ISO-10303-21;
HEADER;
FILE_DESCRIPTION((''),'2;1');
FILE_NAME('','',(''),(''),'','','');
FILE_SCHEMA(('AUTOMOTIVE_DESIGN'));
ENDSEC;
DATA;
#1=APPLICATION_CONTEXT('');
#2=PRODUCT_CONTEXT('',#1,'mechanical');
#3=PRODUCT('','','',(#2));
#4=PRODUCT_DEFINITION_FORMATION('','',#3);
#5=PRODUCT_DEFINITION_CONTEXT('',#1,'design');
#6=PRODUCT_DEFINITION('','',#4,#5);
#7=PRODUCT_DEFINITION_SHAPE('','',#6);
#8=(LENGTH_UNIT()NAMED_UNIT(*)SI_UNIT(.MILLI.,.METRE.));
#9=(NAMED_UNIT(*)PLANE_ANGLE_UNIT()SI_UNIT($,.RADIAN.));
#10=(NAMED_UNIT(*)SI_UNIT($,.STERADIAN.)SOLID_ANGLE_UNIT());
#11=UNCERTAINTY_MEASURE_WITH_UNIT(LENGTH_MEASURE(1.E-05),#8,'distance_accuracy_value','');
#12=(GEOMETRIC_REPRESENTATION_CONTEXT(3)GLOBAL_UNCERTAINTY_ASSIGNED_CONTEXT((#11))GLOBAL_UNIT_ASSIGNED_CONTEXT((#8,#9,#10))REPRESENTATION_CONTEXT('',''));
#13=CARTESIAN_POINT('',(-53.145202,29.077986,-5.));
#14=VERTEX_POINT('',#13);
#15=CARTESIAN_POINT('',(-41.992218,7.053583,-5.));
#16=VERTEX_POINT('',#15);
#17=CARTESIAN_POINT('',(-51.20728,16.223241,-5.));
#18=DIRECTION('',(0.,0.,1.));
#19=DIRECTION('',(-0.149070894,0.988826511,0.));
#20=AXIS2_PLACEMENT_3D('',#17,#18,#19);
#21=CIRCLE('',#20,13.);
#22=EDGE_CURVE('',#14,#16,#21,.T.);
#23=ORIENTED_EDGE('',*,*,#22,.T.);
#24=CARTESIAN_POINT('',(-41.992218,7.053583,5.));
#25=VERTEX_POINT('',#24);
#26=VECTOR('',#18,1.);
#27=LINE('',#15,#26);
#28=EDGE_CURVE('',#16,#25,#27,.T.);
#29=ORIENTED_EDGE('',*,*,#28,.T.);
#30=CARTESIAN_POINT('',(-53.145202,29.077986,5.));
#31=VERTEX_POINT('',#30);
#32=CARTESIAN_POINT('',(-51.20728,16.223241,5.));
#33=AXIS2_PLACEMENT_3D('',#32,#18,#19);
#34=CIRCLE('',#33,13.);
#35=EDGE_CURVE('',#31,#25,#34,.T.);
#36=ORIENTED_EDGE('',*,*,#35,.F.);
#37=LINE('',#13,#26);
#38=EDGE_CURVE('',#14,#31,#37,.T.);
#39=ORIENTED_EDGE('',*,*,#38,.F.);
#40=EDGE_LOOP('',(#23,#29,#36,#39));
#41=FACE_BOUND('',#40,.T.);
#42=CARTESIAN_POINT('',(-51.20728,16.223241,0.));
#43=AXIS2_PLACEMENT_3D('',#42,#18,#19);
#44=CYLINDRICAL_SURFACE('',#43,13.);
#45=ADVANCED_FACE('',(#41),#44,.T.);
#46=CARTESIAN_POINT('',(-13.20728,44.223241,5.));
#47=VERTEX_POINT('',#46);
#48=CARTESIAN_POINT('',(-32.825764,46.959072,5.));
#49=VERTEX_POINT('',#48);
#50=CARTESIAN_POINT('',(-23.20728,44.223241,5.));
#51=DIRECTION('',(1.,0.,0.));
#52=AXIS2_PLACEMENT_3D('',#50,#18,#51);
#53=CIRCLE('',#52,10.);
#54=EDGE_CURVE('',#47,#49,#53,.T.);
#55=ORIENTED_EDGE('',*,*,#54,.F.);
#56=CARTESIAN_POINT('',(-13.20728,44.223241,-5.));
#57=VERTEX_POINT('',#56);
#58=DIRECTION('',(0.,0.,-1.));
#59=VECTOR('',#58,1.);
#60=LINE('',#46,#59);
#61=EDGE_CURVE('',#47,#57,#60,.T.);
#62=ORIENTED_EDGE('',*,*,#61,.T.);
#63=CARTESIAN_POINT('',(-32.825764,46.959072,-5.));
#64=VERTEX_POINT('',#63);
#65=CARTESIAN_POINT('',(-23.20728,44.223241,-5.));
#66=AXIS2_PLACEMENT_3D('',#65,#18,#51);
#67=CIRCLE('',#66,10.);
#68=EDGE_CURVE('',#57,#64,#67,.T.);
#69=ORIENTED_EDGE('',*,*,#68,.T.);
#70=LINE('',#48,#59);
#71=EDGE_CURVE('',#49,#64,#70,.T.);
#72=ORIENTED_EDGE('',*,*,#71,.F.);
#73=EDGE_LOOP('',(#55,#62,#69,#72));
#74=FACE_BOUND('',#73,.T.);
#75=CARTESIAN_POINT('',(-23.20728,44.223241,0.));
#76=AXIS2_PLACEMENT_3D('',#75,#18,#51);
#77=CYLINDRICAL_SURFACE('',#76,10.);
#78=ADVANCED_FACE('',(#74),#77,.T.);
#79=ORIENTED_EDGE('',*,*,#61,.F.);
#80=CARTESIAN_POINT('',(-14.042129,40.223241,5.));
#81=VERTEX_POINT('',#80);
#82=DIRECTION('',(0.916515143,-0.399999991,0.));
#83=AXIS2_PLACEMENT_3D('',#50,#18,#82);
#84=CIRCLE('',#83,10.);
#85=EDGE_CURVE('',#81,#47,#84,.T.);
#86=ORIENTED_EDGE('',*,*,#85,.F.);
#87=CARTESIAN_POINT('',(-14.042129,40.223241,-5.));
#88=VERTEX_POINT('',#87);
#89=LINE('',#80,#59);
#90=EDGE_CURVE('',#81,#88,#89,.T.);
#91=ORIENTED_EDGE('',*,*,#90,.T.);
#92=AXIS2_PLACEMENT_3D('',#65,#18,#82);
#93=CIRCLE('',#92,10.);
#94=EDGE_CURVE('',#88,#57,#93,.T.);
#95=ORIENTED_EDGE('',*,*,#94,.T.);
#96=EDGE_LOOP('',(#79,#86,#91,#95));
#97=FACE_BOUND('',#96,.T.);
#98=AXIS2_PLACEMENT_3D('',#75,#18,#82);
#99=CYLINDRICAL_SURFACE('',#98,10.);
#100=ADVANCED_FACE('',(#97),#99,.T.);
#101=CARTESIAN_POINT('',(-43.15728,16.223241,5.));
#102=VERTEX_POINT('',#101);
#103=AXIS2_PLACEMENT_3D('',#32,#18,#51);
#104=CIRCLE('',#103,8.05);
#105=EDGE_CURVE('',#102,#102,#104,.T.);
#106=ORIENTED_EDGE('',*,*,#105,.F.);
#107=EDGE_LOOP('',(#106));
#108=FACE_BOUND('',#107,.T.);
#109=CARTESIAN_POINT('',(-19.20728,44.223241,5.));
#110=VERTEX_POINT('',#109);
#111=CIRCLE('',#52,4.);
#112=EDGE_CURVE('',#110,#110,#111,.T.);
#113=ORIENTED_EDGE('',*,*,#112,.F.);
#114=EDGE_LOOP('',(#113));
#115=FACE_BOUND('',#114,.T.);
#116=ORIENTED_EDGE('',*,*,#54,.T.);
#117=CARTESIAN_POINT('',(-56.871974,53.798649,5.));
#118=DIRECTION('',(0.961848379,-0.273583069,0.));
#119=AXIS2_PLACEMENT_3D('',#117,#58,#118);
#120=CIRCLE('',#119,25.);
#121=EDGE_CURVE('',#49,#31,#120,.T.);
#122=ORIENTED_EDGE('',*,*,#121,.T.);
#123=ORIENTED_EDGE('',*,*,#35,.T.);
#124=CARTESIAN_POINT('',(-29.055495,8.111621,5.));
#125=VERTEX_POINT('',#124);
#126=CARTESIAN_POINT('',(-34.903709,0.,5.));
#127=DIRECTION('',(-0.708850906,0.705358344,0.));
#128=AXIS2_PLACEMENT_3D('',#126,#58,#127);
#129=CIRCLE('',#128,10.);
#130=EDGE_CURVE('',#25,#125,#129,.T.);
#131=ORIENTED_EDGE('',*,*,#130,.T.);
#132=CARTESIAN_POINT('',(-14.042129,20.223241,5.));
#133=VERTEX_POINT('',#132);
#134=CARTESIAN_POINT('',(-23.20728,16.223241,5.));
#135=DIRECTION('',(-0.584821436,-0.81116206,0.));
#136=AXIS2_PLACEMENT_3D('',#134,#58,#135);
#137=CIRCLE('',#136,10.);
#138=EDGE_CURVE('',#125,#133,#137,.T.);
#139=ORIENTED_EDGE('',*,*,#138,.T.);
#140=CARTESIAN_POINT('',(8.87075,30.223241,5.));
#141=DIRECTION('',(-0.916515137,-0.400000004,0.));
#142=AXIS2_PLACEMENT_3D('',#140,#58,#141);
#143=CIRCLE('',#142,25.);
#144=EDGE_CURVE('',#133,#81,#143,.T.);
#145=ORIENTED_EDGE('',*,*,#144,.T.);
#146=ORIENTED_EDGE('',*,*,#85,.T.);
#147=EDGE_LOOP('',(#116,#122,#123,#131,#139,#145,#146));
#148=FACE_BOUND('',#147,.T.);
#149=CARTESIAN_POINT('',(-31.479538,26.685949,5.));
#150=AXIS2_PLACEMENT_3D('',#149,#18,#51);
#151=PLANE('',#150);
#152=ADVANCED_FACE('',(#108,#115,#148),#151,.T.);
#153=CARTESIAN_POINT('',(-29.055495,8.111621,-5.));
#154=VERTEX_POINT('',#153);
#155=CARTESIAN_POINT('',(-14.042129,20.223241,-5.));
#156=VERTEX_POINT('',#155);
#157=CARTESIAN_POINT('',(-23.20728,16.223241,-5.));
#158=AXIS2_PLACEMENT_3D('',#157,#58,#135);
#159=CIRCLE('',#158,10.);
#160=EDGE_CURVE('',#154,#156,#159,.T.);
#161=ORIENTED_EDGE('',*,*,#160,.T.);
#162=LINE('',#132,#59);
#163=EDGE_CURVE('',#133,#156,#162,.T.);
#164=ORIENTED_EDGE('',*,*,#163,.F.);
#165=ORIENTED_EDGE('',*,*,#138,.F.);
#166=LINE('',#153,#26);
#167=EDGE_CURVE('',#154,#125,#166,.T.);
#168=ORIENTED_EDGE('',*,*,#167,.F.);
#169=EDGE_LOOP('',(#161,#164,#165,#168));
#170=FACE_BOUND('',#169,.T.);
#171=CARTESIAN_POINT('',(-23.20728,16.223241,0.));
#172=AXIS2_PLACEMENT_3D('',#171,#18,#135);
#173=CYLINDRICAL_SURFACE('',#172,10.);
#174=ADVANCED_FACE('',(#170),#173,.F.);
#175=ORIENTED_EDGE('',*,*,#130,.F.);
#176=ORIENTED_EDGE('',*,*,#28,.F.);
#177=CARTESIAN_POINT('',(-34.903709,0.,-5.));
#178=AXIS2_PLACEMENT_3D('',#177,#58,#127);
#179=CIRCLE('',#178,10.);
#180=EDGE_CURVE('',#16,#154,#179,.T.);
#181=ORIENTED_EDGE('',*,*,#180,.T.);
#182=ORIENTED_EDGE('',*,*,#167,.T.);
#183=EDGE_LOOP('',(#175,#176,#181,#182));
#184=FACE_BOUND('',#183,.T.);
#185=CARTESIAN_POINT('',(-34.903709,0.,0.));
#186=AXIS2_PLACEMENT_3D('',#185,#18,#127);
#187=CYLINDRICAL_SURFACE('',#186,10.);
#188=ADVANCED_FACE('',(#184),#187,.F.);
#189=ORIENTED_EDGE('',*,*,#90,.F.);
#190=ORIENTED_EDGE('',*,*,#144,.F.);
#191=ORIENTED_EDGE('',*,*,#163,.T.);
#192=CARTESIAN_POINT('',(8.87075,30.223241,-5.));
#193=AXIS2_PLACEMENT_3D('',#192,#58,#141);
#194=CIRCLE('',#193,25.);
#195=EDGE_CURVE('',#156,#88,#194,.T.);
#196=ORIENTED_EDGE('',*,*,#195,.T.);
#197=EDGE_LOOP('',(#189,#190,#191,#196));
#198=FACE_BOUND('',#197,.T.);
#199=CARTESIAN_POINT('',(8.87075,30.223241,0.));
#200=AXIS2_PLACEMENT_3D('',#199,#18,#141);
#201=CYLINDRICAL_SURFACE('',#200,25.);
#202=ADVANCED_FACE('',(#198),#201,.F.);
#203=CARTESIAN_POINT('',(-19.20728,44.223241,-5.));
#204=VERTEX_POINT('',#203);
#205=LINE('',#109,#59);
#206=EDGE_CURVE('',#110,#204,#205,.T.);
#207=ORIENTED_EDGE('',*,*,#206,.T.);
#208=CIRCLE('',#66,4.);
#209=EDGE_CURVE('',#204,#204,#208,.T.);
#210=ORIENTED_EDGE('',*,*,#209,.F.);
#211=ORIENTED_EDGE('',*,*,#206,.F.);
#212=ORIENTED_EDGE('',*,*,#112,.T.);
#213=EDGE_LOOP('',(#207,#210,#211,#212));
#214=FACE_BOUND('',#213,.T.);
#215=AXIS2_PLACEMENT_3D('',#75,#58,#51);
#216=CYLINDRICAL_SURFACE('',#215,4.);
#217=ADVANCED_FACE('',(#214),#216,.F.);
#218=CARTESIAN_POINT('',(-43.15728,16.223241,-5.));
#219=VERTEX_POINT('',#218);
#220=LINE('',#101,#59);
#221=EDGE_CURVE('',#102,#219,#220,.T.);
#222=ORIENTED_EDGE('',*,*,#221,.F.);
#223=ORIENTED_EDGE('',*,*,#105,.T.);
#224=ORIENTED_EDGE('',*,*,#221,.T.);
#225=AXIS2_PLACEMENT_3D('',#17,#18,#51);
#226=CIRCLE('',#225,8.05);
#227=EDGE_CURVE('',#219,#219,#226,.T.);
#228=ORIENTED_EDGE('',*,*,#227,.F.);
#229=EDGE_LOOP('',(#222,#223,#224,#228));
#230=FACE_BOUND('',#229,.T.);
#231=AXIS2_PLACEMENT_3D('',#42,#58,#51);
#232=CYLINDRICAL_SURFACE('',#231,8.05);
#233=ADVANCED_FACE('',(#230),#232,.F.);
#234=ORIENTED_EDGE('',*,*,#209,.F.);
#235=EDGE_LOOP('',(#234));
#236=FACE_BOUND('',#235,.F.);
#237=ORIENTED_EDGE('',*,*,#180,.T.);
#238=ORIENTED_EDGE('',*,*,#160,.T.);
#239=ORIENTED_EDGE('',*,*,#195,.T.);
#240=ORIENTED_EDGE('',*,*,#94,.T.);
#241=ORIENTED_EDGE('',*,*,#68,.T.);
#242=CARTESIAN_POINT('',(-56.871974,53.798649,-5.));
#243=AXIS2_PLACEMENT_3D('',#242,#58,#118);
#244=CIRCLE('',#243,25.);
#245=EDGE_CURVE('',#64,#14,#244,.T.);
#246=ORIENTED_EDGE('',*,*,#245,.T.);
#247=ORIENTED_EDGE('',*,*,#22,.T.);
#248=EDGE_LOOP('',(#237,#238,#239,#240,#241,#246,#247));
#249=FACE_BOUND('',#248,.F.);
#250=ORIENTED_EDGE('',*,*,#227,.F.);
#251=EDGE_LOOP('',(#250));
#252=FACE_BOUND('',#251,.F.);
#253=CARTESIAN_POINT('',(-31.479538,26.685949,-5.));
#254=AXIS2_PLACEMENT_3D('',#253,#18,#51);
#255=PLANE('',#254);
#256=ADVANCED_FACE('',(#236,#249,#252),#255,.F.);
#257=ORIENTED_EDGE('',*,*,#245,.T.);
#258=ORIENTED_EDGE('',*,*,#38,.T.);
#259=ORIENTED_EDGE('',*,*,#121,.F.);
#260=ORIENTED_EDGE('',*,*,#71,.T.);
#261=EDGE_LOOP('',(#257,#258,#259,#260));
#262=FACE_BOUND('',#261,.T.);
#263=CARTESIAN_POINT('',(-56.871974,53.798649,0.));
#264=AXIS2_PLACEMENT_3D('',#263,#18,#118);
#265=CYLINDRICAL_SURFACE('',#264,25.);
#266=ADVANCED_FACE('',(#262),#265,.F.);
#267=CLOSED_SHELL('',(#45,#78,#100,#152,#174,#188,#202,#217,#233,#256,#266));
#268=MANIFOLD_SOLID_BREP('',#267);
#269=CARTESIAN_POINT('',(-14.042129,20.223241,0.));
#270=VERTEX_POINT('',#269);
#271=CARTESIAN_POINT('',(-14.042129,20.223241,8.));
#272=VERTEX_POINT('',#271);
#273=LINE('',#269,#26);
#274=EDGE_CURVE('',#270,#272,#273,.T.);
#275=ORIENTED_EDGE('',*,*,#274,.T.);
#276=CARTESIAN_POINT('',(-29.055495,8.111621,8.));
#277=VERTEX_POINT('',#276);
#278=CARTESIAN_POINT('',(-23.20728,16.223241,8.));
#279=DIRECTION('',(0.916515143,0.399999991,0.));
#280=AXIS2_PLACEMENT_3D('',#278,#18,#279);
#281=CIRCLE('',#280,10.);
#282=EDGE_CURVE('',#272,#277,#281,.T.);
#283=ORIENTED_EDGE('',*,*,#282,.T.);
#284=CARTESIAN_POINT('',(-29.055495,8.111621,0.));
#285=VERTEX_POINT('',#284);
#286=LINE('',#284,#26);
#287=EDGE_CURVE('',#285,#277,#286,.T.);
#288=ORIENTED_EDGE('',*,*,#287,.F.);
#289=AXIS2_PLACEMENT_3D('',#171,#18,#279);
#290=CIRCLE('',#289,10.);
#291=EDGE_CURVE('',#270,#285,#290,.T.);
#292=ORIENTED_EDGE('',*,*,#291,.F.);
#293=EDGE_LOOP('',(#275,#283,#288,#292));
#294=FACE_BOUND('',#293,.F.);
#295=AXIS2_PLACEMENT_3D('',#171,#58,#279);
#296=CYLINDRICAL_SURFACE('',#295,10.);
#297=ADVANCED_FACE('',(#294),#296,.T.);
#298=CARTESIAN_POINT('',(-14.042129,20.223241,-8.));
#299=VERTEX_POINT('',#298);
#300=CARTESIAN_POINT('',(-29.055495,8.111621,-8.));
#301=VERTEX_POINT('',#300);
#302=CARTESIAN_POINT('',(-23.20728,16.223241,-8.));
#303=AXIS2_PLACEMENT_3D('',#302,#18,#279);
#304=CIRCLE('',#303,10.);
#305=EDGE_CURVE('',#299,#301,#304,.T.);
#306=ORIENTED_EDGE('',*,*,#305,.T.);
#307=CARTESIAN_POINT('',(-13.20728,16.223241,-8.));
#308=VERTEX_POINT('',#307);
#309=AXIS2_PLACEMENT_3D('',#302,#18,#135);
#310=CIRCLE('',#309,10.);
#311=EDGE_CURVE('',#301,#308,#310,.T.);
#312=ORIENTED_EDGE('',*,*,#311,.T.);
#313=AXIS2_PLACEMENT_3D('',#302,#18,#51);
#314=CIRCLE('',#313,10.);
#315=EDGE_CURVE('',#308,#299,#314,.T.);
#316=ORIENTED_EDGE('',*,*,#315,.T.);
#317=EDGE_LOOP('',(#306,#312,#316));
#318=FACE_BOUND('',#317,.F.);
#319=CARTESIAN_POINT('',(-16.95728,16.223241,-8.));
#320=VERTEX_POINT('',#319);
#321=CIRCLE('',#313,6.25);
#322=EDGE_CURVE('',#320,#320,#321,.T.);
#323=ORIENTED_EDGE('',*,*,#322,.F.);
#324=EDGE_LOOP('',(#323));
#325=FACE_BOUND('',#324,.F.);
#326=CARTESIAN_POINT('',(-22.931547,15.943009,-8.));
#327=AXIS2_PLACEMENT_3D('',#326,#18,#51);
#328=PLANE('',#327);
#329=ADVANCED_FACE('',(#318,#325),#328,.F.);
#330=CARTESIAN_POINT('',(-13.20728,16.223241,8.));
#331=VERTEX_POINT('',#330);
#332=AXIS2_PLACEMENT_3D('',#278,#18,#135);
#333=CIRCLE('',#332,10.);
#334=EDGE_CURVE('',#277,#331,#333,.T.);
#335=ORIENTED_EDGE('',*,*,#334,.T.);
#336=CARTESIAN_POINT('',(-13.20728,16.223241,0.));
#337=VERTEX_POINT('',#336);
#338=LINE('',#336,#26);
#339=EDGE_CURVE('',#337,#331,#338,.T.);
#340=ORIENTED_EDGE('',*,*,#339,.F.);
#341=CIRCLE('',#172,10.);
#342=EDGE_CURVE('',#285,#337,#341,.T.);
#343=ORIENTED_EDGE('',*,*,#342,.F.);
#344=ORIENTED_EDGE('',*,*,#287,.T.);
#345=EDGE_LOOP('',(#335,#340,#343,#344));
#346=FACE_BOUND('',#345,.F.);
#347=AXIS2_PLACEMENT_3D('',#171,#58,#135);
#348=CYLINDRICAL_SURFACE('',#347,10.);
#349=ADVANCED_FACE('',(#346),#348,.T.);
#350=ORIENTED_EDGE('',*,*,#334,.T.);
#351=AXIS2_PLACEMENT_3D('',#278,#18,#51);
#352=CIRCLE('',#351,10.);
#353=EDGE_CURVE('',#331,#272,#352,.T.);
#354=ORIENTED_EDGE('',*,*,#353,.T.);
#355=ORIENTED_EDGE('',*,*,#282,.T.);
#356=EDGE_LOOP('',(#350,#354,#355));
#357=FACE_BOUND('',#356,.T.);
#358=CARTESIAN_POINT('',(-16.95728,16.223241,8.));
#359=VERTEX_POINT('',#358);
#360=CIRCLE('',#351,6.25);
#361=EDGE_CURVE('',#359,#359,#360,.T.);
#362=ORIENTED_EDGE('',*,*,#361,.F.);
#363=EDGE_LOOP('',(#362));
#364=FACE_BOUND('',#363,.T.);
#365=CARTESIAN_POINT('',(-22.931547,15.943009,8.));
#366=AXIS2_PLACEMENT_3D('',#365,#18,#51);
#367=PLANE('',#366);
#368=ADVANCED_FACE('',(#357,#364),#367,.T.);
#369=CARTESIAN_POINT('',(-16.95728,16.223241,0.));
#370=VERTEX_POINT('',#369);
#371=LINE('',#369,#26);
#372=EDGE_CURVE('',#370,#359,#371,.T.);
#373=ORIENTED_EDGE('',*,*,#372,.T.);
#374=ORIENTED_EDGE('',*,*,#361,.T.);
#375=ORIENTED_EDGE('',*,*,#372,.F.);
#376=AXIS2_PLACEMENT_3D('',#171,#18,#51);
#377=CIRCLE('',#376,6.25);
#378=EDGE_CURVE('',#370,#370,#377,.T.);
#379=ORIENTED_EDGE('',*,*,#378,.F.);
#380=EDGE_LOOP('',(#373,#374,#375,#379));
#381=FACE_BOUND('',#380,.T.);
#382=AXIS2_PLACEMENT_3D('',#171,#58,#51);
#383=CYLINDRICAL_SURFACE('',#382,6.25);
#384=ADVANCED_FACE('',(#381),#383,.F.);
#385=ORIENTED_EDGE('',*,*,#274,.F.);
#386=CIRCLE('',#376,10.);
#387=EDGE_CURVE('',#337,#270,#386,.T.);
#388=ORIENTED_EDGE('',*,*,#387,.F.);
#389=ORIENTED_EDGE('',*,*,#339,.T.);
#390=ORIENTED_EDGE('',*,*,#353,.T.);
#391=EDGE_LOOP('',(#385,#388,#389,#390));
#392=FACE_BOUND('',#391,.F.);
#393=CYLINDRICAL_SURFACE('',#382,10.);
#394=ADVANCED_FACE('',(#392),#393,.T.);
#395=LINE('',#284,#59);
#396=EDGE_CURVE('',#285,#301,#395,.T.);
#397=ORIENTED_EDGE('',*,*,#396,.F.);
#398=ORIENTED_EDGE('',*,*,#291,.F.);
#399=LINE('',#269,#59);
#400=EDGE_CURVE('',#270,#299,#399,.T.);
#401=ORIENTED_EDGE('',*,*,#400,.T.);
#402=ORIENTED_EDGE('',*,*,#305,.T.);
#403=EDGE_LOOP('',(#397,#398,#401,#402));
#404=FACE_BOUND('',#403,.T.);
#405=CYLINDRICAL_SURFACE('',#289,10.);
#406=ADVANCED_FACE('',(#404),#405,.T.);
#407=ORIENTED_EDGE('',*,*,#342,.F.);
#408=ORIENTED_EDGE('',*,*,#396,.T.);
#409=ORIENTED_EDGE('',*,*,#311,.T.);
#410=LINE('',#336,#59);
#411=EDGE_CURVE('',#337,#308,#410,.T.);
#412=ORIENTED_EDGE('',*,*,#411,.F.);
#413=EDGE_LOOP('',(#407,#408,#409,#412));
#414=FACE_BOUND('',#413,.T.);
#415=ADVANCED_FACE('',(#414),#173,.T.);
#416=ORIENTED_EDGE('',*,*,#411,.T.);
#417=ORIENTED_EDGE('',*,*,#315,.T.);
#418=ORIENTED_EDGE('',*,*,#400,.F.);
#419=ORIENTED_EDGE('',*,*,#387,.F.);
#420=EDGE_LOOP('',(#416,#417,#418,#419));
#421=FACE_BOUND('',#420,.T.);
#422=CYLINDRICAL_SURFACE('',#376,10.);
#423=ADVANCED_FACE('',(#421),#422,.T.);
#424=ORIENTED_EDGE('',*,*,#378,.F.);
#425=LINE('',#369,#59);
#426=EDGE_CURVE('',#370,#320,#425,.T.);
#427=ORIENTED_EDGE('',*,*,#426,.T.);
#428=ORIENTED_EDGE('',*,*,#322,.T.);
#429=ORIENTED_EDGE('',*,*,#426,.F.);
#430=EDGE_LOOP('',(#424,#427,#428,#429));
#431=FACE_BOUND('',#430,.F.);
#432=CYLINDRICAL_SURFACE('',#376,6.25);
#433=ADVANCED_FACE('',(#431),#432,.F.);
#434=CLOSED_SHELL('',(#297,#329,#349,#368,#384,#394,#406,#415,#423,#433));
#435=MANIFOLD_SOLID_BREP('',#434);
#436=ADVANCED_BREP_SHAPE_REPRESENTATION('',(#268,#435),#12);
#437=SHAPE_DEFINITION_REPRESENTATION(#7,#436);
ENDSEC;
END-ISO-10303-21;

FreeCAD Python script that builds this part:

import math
import FreeCAD as App
import Part
import Sketcher
Q = App.Units.Quantity

doc = App.newDocument("Part")
body = doc.addObject("PartDesign::Body", "Body")

sketch1 = doc.addObject("Sketcher::SketchObject", "Sketch")
body.addObject(sketch1)
sketch1.AttachmentSupport = (doc.XY_Plane, [""])
sketch1.MapMode = "FlatFace"
sketch1.addGeometry([
    Part.ArcOfCircle(Part.Circle(App.Vector(-23.2, 16.2, 0), App.Vector(0, 0, 1), 10), math.radians(0), math.radians(24)),
    Part.ArcOfCircle(Part.Circle(App.Vector(-23.2, 16.2, 0), App.Vector(0, 0, 1), 10), math.radians(24), math.radians(234)),
    Part.ArcOfCircle(Part.Circle(App.Vector(-23.2, 16.2, 0), App.Vector(0, 0, 1), 10), math.radians(-126), math.radians(0)),
    Part.Circle(App.Vector(-23.2, 16.2, 0), App.Vector(0, 0, 1), 6.2),
], False)
sketch1.addConstraint([
    Sketcher.Constraint("Tangent", 0, 2, 1, 1),
    Sketcher.Constraint("Tangent", 1, 2, 2, 1),
    Sketcher.Constraint("Tangent", 2, 2, 0, 1),
    Sketcher.Constraint("Coincident", 3, 3, 0, 3),
    Sketcher.Constraint("Horizontal", 3, 3, 2, 2),
    Sketcher.Constraint("Radius", 0, Q("10 mm")),
    Sketcher.Constraint("Diameter", 3, Q("12.5 mm")),
    Sketcher.Constraint("DistanceY", 1, 3, 0, 2, Q("4 mm")),
    Sketcher.Constraint("DistanceX", 0, 3, -1, 1, Q("23.20728 mm")),
    Sketcher.Constraint("DistanceY", -1, 1, 0, 3, Q("16.223241 mm")),
    Sketcher.Constraint("DistanceY", -1, 1, 1, 2, Q("8.111621 mm")),
])
pad1 = doc.addObject("PartDesign::Pad", "Pad")
body.addObject(pad1)
pad1.Profile = sketch1
pad1.Length = 16
pad1.Midplane = True
body2 = doc.addObject("PartDesign::Body", "Body001")

sketch2 = doc.addObject("Sketcher::SketchObject", "Sketch001")
body2.addObject(sketch2)
sketch2.AttachmentSupport = (doc.getObject("XY_Plane001"), [""])
sketch2.MapMode = "FlatFace"
sketch2.addGeometry([
    Part.ArcOfCircle(Part.Circle(App.Vector(-56.9, 53.8, 0), App.Vector(0, 0, 1), 25), math.radians(-81), math.radians(-16)),
    Part.ArcOfCircle(Part.Circle(App.Vector(-51.2, 16.2, 0), App.Vector(0, 0, 1), 13), math.radians(99), math.radians(315)),
    Part.ArcOfCircle(Part.Circle(App.Vector(-34.9, 0, 0), App.Vector(0, 0, 1), 10), math.radians(54), math.radians(135)),
    Part.ArcOfCircle(Part.Circle(App.Vector(-23.2, 16.2, 0), App.Vector(0, 0, 1), 10), math.radians(24), math.radians(234)),
    Part.ArcOfCircle(Part.Circle(App.Vector(8.9, 30.2, 0), App.Vector(0, 0, 1), 25), math.radians(156), math.radians(204)),
    Part.ArcOfCircle(Part.Circle(App.Vector(-23.2, 44.2, 0), App.Vector(0, 0, 1), 10), math.radians(-24), math.radians(0)),
    Part.ArcOfCircle(Part.Circle(App.Vector(-23.2, 44.2, 0), App.Vector(0, 0, 1), 10), math.radians(0), math.radians(164)),
    Part.Circle(App.Vector(-51.2, 16.2, 0), App.Vector(0, 0, 1), 8.1),
    Part.Circle(App.Vector(-23.2, 44.2, 0), App.Vector(0, 0, 1), 4),
], False)
sketch2.addConstraint([
    Sketcher.Constraint("Tangent", 0, 1, 1, 1),
    Sketcher.Constraint("Tangent", 1, 2, 2, 2),
    Sketcher.Constraint("Tangent", 2, 1, 3, 2),
    Sketcher.Constraint("Tangent", 3, 1, 4, 2),
    Sketcher.Constraint("Tangent", 4, 1, 5, 1),
    Sketcher.Constraint("Tangent", 5, 2, 6, 1),
    Sketcher.Constraint("Tangent", 6, 2, 0, 2),
    Sketcher.Constraint("Coincident", 7, 3, 1, 3),
    Sketcher.Constraint("Coincident", 8, 3, 5, 3),
    Sketcher.Constraint("Equal", 2, 3),
    Sketcher.Constraint("Equal", 0, 4),
    Sketcher.Constraint("Equal", 3, 5),
    Sketcher.Constraint("Equal", 5, 6),
    Sketcher.Constraint("PointOnObject", 2, 3, -1),
    Sketcher.Constraint("Horizontal", 1, 3, 3, 3),
    Sketcher.Constraint("Horizontal", 8, 3, 5, 2),
    Sketcher.Constraint("Vertical", 3, 3, 5, 3),
    Sketcher.Constraint("Diameter", 8, Q("8 mm")),
    Sketcher.Constraint("Radius", 0, Q("25 mm")),
    Sketcher.Constraint("Radius", 1, Q("13 mm")),
    Sketcher.Constraint("Radius", 2, Q("10 mm")),
    Sketcher.Constraint("Diameter", 7, Q("16.1 mm")),
    Sketcher.Constraint("DistanceX", 1, 3, 3, 3, Q("28 mm")),
    Sketcher.Constraint("DistanceY", 3, 3, 4, 3, Q("14 mm")),
    Sketcher.Constraint("DistanceX", 0, 1, -1, 1, Q("53.145202 mm")),
])
pad2 = doc.addObject("PartDesign::Pad", "Pad001")
body2.addObject(pad2)
pad2.Profile = sketch2
pad2.Length = 10
pad2.Midplane = True

doc.recompute()
